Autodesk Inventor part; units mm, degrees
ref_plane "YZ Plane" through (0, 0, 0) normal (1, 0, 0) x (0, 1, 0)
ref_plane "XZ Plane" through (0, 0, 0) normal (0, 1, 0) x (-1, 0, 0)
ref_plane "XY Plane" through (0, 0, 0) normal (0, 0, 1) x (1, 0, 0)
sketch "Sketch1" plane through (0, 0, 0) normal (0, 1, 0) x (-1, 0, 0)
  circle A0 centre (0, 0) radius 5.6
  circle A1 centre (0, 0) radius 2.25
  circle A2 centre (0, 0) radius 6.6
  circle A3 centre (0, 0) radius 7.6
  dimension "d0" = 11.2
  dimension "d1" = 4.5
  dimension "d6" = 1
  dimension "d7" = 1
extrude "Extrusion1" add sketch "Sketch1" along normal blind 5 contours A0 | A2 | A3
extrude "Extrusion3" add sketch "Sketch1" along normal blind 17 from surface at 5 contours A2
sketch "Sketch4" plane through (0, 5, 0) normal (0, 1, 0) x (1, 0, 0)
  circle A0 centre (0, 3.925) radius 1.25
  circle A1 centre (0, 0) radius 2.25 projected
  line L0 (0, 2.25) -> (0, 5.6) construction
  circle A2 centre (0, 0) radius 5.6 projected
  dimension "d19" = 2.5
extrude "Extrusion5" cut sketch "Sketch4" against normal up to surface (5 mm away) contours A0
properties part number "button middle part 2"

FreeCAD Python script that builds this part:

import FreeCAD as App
import Part
import Sketcher

V = App.Vector

doc = App.newDocument("Part")
params = doc.addObject("Spreadsheet::Sheet", "Params")
for row, (alias, value) in enumerate([
    ("sketch1_diameter", "4.5 mm"),
    ("sketch1_diameter2", "15.2 mm"),
    ("pad1_length", "5 mm"),
    ("sketch2_diameter", "11.2 mm"),
    ("sketch2_diameter2", "13.2 mm"),
    ("pad2_length", "17 mm"),
    ("sketch3_diameter", "2.5 mm"),
    ("pocket1_length", "5 mm"),
], start=1):
    params.set(f"A{row}", alias)
    params.set(f"B{row}", "=" + value)
    params.setAlias(f"B{row}", alias)

body = doc.addObject("PartDesign::Body", "Body")

sketch1 = body.newObject("Sketcher::SketchObject", "Sketch")
sketch1.AttachmentSupport = (doc.getObject("XZ_Plane"), [""])
sketch1.MapMode = "FlatFace"
sketch1.addGeometry(Part.Circle(V(0, 0, 0), V(0, 0, 1), 7.6), False)
sketch1.addGeometry(Part.Circle(V(0, 0, 0), V(0, 0, 1), 2.25), False)
sketch1.addConstraint(Sketcher.Constraint("Coincident", 0, 3, -1, 1))
sketch1.addConstraint(Sketcher.Constraint("Coincident", 1, 3, -1, 1))
sketch1.addConstraint(Sketcher.Constraint("Diameter", 1, 4.5))
sketch1.addConstraint(Sketcher.Constraint("Diameter", 0, 15.2))
sketch1.setExpression("Constraints[2]", "Params.sketch1_diameter")
sketch1.setExpression("Constraints[3]", "Params.sketch1_diameter2")
pad1 = body.newObject("PartDesign::Pad", "Pad")
pad1.Profile = sketch1
pad1.setExpression("Length", "Params.pad1_length")
pad1.Reversed = True

sketch2 = body.newObject("Sketcher::SketchObject", "Sketch001")
sketch2.AttachmentSupport = (doc.getObject("XZ_Plane"), [""])
sketch2.MapMode = "FlatFace"
sketch2.AttachmentOffset = App.Placement(V(0, 0, -5), App.Rotation())
sketch2.addGeometry(Part.Circle(V(0, 0, 0), V(0, 0, 1), 6.6), False)
sketch2.addGeometry(Part.Circle(V(0, 0, 0), V(0, 0, 1), 5.6), False)
sketch2.addConstraint(Sketcher.Constraint("Coincident", 0, 3, -1, 1))
sketch2.addConstraint(Sketcher.Constraint("Coincident", 1, 3, -1, 1))
sketch2.addConstraint(Sketcher.Constraint("Diameter", 1, 11.2))
sketch2.addConstraint(Sketcher.Constraint("Diameter", 0, 13.2))
sketch2.setExpression("Constraints[2]", "Params.sketch2_diameter")
sketch2.setExpression("Constraints[3]", "Params.sketch2_diameter2")
pad2 = body.newObject("PartDesign::Pad", "Pad001")
pad2.Profile = sketch2
pad2.setExpression("Length", "Params.pad2_length")
pad2.Reversed = True

sketch3 = body.newObject("Sketcher::SketchObject", "Sketch002")
sketch3.AttachmentSupport = (doc.getObject("XZ_Plane"), [""])
sketch3.MapMode = "FlatFace"
sketch3.AttachmentOffset = App.Placement(V(0, 0, -5), App.Rotation())
sketch3.addGeometry(Part.Circle(V(0, -3.925, 0), V(0, 0, 1), 1.25), False)
sketch3.addConstraint(Sketcher.Constraint("PointOnObject", 0, 3, -2))
sketch3.addConstraint(Sketcher.Constraint("Diameter", 0, 2.5))
sketch3.addConstraint(Sketcher.Constraint("DistanceY", 0, 3, -1, 1, 3.925))
sketch3.setExpression("Constraints[1]", "Params.sketch3_diameter")
pocket1 = body.newObject("PartDesign::Pocket", "Pocket")
pocket1.Profile = sketch3
pocket1.setExpression("Length", "Params.pocket1_length")
pocket1.Reversed = True

doc.recompute()
